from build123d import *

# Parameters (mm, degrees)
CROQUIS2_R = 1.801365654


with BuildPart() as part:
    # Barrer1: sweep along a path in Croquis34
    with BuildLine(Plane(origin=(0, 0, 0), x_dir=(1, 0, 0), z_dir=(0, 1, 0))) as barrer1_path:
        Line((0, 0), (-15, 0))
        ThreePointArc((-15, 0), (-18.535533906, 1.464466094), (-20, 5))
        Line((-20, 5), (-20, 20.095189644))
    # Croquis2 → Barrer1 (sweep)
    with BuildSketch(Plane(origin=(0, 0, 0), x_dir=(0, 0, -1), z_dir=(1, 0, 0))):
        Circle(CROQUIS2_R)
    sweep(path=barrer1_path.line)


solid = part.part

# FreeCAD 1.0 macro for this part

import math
import FreeCAD as App
import Part
import Sketcher
from FreeCAD import Vector

doc = App.newDocument("Part")
body = doc.addObject("PartDesign::Body", "Body")

# Sketch on YZ plane
sketch1 = doc.addObject("Sketcher::SketchObject", "Sketch")
body.addObject(sketch1)
sketch1.AttachmentSupport = (doc.YZ_Plane, [""])
sketch1.MapMode = "FlatFace"
sketch1.addGeometry(Part.Circle(Vector(0, 0, 0), Vector(0, 0, 1), 1.8), False)
sketch1.addConstraint(Sketcher.Constraint("Coincident", 0, 3, -1, 1))
sketch1.addConstraint(Sketcher.Constraint("Diameter", 0, 3.602731))

# Sketch on XZ plane
sketch2 = doc.addObject("Sketcher::SketchObject", "Sketch001")
body.addObject(sketch2)
sketch2.AttachmentSupport = (doc.XZ_Plane, [""])
sketch2.MapMode = "FlatFace"
sketch2.addGeometry(Part.LineSegment(Vector(0, 0, 0), Vector(-15, 0, 0)), False)
sketch2.addGeometry(Part.ArcOfCircle(Part.Circle(Vector(-15, -5, 0), Vector(0, 0, 1), 5), math.radians(90), math.radians(180)), False)
sketch2.addGeometry(Part.LineSegment(Vector(-20, -5, 0), Vector(-20, -20, 0)), False)
sketch2.addConstraint(Sketcher.Constraint("Tangent", 0, 2, 1, 1))
sketch2.addConstraint(Sketcher.Constraint("Tangent", 1, 2, 2, 1))
sketch2.addConstraint(Sketcher.Constraint("Horizontal", 0))
sketch2.addConstraint(Sketcher.Constraint("Vertical", 2))
sketch2.addConstraint(Sketcher.Constraint("Coincident", 0, 1, -1, 1))
sketch2.addConstraint(Sketcher.Constraint("Radius", 1, 5.0))
sketch2.addConstraint(Sketcher.Constraint("DistanceX", 0, 2, 0, 1, 15.0))
sketch2.addConstraint(Sketcher.Constraint("DistanceY", 2, 2, 2, 1, 15.09519))
doc.recompute()

additivepipe = doc.addObject("PartDesign::AdditivePipe", "AdditivePipe")
body.addObject(additivepipe)
additivepipe.Profile = sketch1
additivepipe.Spine = (sketch2, ["Edge1", "Edge2", "Edge3"])

doc.recompute()
